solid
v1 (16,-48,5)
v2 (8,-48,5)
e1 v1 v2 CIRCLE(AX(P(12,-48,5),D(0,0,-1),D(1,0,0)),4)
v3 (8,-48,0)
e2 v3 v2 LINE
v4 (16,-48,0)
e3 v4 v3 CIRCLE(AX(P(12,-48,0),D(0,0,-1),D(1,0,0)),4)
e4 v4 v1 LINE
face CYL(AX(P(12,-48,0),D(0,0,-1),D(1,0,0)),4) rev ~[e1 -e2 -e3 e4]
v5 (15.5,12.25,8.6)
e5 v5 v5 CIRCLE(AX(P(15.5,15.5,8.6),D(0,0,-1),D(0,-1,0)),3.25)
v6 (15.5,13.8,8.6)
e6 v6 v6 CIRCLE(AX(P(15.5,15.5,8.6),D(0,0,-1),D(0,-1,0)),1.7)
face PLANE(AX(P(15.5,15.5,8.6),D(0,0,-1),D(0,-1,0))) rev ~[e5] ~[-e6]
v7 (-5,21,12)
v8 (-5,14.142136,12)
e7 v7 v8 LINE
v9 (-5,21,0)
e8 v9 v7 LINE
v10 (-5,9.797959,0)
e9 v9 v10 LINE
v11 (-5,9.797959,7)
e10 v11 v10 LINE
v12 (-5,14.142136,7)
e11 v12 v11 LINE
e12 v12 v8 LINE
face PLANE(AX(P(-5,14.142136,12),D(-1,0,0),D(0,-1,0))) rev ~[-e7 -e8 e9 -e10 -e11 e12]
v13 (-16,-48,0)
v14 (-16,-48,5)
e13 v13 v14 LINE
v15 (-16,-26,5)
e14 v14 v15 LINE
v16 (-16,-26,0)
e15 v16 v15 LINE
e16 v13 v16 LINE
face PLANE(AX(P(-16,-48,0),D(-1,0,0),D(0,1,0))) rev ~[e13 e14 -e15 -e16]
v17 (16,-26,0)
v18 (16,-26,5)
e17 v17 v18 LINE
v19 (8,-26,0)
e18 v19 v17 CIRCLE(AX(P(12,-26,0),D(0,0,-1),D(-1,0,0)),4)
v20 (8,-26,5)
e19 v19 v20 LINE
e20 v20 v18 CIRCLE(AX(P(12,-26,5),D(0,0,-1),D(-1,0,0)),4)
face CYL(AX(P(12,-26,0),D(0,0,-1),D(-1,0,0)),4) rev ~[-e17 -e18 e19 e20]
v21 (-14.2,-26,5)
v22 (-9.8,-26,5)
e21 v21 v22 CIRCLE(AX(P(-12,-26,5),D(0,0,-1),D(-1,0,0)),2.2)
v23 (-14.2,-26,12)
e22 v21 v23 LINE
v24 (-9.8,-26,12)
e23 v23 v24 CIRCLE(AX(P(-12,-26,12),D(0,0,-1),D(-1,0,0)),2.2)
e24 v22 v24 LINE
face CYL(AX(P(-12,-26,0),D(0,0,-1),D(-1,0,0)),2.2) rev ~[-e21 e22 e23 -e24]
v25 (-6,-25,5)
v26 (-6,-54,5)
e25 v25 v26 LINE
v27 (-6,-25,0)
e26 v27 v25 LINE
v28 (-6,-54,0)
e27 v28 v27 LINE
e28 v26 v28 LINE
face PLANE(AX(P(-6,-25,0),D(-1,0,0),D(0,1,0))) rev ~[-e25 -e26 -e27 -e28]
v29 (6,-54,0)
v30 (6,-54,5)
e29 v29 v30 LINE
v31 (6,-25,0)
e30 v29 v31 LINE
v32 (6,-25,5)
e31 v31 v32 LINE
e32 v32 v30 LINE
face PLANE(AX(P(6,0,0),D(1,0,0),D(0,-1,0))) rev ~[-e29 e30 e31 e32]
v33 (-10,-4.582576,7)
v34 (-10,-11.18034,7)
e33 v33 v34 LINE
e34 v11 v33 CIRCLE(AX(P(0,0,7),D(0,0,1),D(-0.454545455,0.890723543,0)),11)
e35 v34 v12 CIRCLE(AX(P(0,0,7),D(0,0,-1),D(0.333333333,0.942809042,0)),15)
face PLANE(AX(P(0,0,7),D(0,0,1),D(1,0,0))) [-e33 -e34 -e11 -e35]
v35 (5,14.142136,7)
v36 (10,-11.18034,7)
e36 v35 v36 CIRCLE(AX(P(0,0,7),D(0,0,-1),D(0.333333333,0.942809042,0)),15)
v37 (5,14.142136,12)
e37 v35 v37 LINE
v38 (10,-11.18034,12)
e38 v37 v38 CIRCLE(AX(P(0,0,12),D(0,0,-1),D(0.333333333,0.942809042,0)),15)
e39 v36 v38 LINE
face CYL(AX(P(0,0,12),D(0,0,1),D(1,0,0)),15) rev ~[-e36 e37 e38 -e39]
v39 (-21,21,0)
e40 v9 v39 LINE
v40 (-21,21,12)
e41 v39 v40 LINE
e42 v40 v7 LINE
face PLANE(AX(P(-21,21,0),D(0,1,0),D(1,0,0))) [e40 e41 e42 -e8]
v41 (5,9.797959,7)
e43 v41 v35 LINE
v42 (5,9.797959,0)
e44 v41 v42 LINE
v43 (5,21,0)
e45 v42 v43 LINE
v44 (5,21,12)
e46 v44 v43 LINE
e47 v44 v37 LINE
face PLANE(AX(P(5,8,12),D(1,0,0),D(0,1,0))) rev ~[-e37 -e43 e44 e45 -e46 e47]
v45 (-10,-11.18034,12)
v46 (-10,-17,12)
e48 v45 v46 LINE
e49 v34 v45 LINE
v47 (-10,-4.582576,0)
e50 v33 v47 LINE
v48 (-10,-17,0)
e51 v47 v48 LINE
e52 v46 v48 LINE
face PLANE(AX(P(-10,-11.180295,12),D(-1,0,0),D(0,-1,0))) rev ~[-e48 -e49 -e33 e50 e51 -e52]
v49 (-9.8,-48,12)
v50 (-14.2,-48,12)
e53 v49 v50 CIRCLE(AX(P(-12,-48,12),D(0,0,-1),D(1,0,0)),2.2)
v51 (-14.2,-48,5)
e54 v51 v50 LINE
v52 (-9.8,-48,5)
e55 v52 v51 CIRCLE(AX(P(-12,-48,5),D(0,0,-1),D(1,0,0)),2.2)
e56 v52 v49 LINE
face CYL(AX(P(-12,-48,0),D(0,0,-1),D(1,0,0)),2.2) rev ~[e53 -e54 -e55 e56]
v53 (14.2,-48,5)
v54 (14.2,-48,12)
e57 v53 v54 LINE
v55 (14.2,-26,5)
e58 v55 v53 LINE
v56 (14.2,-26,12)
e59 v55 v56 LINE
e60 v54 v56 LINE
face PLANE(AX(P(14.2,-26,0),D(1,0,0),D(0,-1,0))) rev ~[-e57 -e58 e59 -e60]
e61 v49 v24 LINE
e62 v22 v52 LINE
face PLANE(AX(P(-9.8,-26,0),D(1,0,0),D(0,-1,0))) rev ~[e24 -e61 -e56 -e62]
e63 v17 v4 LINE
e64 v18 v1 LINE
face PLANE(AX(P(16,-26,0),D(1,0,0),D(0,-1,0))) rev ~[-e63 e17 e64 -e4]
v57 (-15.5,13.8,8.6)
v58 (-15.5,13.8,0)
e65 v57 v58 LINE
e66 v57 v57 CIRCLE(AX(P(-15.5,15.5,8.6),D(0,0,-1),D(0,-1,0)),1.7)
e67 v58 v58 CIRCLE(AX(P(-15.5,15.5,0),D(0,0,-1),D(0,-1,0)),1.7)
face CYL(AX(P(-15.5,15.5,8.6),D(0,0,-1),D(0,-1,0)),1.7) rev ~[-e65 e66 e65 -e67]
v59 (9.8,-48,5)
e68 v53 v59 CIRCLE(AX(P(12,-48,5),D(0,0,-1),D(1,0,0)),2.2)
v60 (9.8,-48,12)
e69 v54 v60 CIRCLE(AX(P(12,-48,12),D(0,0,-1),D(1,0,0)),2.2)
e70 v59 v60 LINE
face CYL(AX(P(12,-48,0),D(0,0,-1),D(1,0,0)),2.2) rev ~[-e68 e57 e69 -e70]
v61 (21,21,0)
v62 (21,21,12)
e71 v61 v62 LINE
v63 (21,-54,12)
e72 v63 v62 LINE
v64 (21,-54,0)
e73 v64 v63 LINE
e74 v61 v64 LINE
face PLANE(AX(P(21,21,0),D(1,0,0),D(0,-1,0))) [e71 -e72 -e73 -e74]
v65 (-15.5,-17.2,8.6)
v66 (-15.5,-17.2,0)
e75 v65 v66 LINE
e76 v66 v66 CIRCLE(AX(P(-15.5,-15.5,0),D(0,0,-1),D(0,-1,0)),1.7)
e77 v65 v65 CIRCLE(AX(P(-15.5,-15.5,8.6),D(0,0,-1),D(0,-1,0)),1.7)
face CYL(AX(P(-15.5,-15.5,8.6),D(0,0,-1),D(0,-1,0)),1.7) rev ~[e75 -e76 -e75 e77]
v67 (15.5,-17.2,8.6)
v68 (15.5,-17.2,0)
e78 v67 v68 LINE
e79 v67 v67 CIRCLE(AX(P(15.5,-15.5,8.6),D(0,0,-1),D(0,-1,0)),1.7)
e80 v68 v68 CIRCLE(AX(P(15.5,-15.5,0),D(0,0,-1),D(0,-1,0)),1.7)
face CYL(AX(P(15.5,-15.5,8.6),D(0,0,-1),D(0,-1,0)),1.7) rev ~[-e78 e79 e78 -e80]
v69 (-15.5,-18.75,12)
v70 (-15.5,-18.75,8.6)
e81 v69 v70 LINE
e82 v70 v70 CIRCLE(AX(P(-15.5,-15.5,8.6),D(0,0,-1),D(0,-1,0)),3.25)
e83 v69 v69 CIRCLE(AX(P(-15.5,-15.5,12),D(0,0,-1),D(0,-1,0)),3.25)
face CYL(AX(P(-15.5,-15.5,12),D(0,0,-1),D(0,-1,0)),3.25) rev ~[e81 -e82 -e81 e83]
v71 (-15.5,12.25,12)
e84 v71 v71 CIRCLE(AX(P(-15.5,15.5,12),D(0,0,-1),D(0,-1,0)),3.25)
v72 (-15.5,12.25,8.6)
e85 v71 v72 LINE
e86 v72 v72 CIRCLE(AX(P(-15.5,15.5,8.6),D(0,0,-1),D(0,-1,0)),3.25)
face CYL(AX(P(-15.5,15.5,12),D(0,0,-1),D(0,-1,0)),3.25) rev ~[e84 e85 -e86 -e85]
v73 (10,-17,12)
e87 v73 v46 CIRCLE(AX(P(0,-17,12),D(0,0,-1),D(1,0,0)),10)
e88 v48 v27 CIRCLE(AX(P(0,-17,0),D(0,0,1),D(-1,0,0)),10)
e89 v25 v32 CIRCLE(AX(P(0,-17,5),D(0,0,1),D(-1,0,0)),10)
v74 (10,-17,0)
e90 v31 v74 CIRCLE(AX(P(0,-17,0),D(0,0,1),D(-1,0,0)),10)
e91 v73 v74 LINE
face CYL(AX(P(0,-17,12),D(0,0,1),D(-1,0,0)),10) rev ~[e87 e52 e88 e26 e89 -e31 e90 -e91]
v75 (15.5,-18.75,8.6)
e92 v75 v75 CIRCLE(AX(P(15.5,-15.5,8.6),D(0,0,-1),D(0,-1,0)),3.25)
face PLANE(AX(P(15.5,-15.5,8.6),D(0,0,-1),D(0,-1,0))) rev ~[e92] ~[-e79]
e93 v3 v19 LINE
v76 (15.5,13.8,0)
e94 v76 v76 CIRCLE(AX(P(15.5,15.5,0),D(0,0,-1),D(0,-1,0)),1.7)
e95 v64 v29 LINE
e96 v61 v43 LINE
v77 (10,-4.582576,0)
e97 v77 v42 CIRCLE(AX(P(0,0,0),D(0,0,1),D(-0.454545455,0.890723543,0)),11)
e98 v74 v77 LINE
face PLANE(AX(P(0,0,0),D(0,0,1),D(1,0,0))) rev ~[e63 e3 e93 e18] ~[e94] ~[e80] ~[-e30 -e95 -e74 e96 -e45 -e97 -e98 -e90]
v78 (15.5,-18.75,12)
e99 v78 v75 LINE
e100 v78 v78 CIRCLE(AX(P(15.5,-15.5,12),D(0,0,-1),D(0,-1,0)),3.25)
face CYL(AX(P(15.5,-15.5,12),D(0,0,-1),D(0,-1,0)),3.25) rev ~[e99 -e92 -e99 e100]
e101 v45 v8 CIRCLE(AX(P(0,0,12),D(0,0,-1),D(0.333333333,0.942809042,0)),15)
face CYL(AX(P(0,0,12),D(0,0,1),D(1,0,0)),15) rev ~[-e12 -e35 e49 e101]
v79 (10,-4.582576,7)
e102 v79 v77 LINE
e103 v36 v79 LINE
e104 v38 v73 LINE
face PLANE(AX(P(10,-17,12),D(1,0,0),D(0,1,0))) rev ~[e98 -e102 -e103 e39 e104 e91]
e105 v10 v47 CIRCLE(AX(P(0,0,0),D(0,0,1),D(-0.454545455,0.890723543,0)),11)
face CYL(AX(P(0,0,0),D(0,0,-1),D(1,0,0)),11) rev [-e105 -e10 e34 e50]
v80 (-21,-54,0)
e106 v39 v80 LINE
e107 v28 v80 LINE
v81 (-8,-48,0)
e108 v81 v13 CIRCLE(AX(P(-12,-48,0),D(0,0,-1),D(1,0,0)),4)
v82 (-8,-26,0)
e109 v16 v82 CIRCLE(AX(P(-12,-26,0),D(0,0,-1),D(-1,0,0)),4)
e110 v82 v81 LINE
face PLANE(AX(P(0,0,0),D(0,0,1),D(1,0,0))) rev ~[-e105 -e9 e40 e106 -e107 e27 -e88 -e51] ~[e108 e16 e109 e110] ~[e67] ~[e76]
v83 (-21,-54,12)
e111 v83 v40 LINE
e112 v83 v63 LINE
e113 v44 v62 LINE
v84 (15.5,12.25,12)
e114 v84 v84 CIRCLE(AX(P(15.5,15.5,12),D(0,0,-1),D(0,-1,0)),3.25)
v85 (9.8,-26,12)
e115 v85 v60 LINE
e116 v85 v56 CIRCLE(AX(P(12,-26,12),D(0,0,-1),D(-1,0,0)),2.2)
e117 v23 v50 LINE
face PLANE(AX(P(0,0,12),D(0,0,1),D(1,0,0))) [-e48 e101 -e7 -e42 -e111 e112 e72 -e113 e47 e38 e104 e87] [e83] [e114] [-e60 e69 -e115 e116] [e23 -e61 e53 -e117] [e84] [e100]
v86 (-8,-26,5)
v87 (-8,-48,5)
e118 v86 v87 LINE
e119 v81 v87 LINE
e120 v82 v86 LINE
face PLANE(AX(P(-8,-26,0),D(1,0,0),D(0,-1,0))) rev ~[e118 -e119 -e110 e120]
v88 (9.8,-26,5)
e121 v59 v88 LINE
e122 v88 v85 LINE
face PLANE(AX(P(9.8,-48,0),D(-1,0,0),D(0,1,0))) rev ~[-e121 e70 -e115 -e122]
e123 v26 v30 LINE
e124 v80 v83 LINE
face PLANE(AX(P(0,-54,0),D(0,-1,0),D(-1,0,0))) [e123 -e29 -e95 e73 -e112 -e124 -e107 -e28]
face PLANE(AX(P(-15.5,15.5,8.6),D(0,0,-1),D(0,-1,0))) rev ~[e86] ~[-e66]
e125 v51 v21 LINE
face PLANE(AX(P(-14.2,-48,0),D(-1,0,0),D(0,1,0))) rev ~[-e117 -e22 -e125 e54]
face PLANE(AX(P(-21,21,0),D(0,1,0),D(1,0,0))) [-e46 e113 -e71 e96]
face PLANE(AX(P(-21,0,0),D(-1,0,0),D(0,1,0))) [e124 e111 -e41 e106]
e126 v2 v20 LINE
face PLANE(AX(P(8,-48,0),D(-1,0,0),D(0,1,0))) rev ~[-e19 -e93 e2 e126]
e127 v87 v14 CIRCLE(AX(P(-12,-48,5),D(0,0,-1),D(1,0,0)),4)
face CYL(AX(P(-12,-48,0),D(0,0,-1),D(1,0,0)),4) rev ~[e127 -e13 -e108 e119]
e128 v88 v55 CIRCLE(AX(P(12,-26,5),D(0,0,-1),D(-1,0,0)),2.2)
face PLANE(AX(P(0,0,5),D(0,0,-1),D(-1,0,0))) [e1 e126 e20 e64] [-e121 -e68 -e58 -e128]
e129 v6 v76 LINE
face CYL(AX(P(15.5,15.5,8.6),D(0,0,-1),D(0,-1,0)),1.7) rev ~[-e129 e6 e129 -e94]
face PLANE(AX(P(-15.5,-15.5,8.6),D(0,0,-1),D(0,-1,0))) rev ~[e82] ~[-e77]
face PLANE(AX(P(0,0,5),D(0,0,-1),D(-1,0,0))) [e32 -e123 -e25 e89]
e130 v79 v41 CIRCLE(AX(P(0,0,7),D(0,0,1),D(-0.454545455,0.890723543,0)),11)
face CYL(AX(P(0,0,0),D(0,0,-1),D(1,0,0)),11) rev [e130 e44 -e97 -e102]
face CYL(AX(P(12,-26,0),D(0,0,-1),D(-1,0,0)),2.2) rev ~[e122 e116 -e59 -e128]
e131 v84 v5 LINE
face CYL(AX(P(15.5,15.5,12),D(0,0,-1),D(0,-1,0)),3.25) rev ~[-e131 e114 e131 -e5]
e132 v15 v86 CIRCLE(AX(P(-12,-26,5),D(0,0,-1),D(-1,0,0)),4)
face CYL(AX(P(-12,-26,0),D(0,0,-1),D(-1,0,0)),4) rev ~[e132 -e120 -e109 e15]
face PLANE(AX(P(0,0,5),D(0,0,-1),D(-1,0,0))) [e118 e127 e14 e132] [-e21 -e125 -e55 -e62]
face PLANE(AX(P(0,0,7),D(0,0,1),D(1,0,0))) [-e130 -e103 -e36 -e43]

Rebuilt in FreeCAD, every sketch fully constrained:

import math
import FreeCAD as App
import Part
import Sketcher

V = App.Vector
Q = App.Units.Quantity

doc = App.newDocument("Part")
body = doc.addObject("PartDesign::Body", "Body")

sketch1 = doc.addObject("Sketcher::SketchObject", "Sketch")
body.addObject(sketch1)
sketch1.AttachmentSupport = (doc.XY_Plane, [""])
sketch1.MapMode = "FlatFace"
sketch1.addGeometry([
    Part.LineSegment(V(-21, 21, 0), V(-21, -54, 0)),
    Part.LineSegment(V(-21, -54, 0), V(21, -54, 0)),
    Part.LineSegment(V(21, -54, 0), V(21, 21, 0)),
    Part.LineSegment(V(21, 21, 0), V(-21, 21, 0)),
    Part.Circle(V(0, 0, 0), V(0, 0, 1), 11),
], False)
sketch1.addConstraint([
    Sketcher.Constraint("Coincident", 0, 2, 1, 1),
    Sketcher.Constraint("Coincident", 1, 2, 2, 1),
    Sketcher.Constraint("Coincident", 2, 2, 3, 1),
    Sketcher.Constraint("Coincident", 3, 2, 0, 1),
    Sketcher.Constraint("Vertical", 0),
    Sketcher.Constraint("Horizontal", 1),
    Sketcher.Constraint("Vertical", 2),
    Sketcher.Constraint("Horizontal", 3),
    Sketcher.Constraint("Coincident", 4, 3, -1, 1),
    Sketcher.Constraint("Diameter", 4, Q("22 mm")),
    Sketcher.Constraint("DistanceX", 1, 1, 1, 2, Q("42 mm")),
    Sketcher.Constraint("DistanceY", 0, 2, 0, 1, Q("75 mm")),
    Sketcher.Constraint("DistanceX", 0, 2, -1, 1, Q("21 mm")),
    Sketcher.Constraint("DistanceY", -1, 1, 2, 2, Q("21 mm")),
])
pad1 = doc.addObject("PartDesign::Pad", "Pad")
body.addObject(pad1)
pad1.Profile = sketch1
pad1.Length = 12

sketch2 = doc.addObject("Sketcher::SketchObject", "Sketch001")
body.addObject(sketch2)
sketch2.AttachmentSupport = (doc.XY_Plane, [""])
sketch2.MapMode = "FlatFace"
sketch2.AttachmentOffset = App.Placement(V(0, 0, 12), App.Rotation())
sketch2.addGeometry([
    Part.Circle(V(-15.5, 15.5, 0), V(0, 0, 1), 1.7),
    Part.Circle(V(15.5, 15.5, 0), V(0, 0, 1), 1.7),
    Part.Circle(V(15.5, -15.5, 0), V(0, 0, 1), 1.7),
    Part.Circle(V(-15.5, -15.5, 0), V(0, 0, 1), 1.7),
], False)
sketch2.addConstraint([
    Sketcher.Constraint("Equal", 0, 1),
    Sketcher.Constraint("Equal", 1, 2),
    Sketcher.Constraint("Equal", 2, 3),
    Sketcher.Constraint("Symmetric", 0, 3, 2, 3, -1, 1),
    Sketcher.Constraint("Symmetric", 1, 3, 3, 3, -1, 1),
    Sketcher.Constraint("Symmetric", 0, 3, 1, 3, -2),
    Sketcher.Constraint("Diameter", 0, Q("3.4 mm")),
    Sketcher.Constraint("DistanceX", 0, 3, 1, 3, Q("31 mm")),
    Sketcher.Constraint("DistanceY", 2, 3, 1, 3, Q("31 mm")),
])
doc.recompute()
hole = doc.addObject("PartDesign::Hole", "Hole")
body.addObject(hole)
hole.Profile = sketch2
hole.ThreadType = "None"
hole.Diameter = 3.4
hole.DepthType = "ThroughAll"
hole.HoleCutType = "Counterbore"
hole.HoleCutDiameter = 6.5
hole.HoleCutDepth = 3.4

sketch3 = doc.addObject("Sketcher::SketchObject", "Sketch002")
body.addObject(sketch3)
sketch3.AttachmentSupport = (doc.XY_Plane, [""])
sketch3.MapMode = "FlatFace"
sketch3.addGeometry([
    Part.ArcOfCircle(Part.Circle(V(12, -48, 0), V(0, 0, 1), 4), math.radians(180), math.radians(360)),
    Part.LineSegment(V(8, -48, 0), V(8, -26, 0)),
    Part.ArcOfCircle(Part.Circle(V(12, -26, 0), V(0, 0, 1), 4), math.radians(0), math.radians(180)),
    Part.LineSegment(V(16, -26, 0), V(16, -48, 0)),
    Part.ArcOfCircle(Part.Circle(V(-12, -48, 0), V(0, 0, 1), 4), math.radians(180), math.radians(360)),
    Part.LineSegment(V(-16, -48, 0), V(-16, -26, 0)),
    Part.ArcOfCircle(Part.Circle(V(-12, -26, 0), V(0, 0, 1), 4), math.radians(0), math.radians(180)),
    Part.LineSegment(V(-8, -26, 0), V(-8, -48, 0)),
], False)
sketch3.addConstraint([
    Sketcher.Constraint("Tangent", 0, 1, 1, 1),
    Sketcher.Constraint("Tangent", 1, 2, 2, 2),
    Sketcher.Constraint("Tangent", 2, 1, 3, 1),
    Sketcher.Constraint("Tangent", 3, 2, 0, 2),
    Sketcher.Constraint("Tangent", 4, 1, 5, 1),
    Sketcher.Constraint("Tangent", 5, 2, 6, 2),
    Sketcher.Constraint("Tangent", 6, 1, 7, 1),
    Sketcher.Constraint("Tangent", 7, 2, 4, 2),
    Sketcher.Constraint("Vertical", 1),
    Sketcher.Constraint("Vertical", 3),
    Sketcher.Constraint("Vertical", 5),
    Sketcher.Constraint("Vertical", 7),
    Sketcher.Constraint("Equal", 2, 4),
    Sketcher.Constraint("Symmetric", 0, 3, 4, 3, -2),
    Sketcher.Constraint("Horizontal", 2, 3, 6, 3),
    Sketcher.Constraint("Radius", 0, Q("4 mm")),
    Sketcher.Constraint("DistanceY", 1, 1, 1, 2, Q("22 mm")),
    Sketcher.Constraint("DistanceX", -1, 1, 0, 1, Q("8 mm")),
    Sketcher.Constraint("DistanceY", 0, 3, -1, 1, Q("48 mm")),
])
pocket1 = doc.addObject("PartDesign::Pocket", "Pocket")
body.addObject(pocket1)
pocket1.Profile = sketch3
pocket1.Length = 5
pocket1.Reversed = True

sketch4 = doc.addObject("Sketcher::SketchObject", "Sketch003")
body.addObject(sketch4)
sketch4.AttachmentSupport = (doc.XY_Plane, [""])
sketch4.MapMode = "FlatFace"
sketch4.addGeometry([
    Part.ArcOfCircle(Part.Circle(V(-12, -48, 0), V(0, 0, 1), 2.2), math.radians(180), math.radians(360)),
    Part.LineSegment(V(-14.2, -48, 0), V(-14.2, -26, 0)),
    Part.ArcOfCircle(Part.Circle(V(-12, -26, 0), V(0, 0, 1), 2.2), math.radians(0), math.radians(180)),
    Part.LineSegment(V(-9.8, -26, 0), V(-9.8, -48, 0)),
    Part.ArcOfCircle(Part.Circle(V(12, -48, 0), V(0, 0, 1), 2.2), math.radians(180), math.radians(360)),
    Part.LineSegment(V(9.8, -48, 0), V(9.8, -26, 0)),
    Part.ArcOfCircle(Part.Circle(V(12, -26, 0), V(0, 0, 1), 2.2), math.radians(0), math.radians(180)),
    Part.LineSegment(V(14.2, -26, 0), V(14.2, -48, 0)),
], False)
sketch4.addConstraint([
    Sketcher.Constraint("Tangent", 0, 1, 1, 1),
    Sketcher.Constraint("Tangent", 1, 2, 2, 2),
    Sketcher.Constraint("Tangent", 2, 1, 3, 1),
    Sketcher.Constraint("Tangent", 3, 2, 0, 2),
    Sketcher.Constraint("Tangent", 4, 1, 5, 1),
    Sketcher.Constraint("Tangent", 5, 2, 6, 2),
    Sketcher.Constraint("Tangent", 6, 1, 7, 1),
    Sketcher.Constraint("Tangent", 7, 2, 4, 2),
    Sketcher.Constraint("Vertical", 1),
    Sketcher.Constraint("Vertical", 3),
    Sketcher.Constraint("Vertical", 5),
    Sketcher.Constraint("Vertical", 7),
    Sketcher.Constraint("Equal", 2, 4),
    Sketcher.Constraint("Symmetric", 0, 3, 4, 3, -2),
    Sketcher.Constraint("Horizontal", 2, 3, 6, 3),
    Sketcher.Constraint("Radius", 0, Q("2.2 mm")),
    Sketcher.Constraint("DistanceY", 1, 1, 1, 2, Q("22 mm")),
    Sketcher.Constraint("DistanceX", 0, 3, -1, 1, Q("12 mm")),
    Sketcher.Constraint("DistanceY", 0, 3, -1, 1, Q("48 mm")),
])
pocket2 = doc.addObject("PartDesign::Pocket", "Pocket001")
body.addObject(pocket2)
pocket2.Profile = sketch4
pocket2.Type = "ThroughAll"
pocket2.Reversed = True

sketch5 = doc.addObject("Sketcher::SketchObject", "Sketch004")
body.addObject(sketch5)
sketch5.AttachmentSupport = (doc.XY_Plane, [""])
sketch5.MapMode = "FlatFace"
sketch5.AttachmentOffset = App.Placement(V(0, 0, 12), App.Rotation())
sketch5.addGeometry([
    Part.Circle(V(0, 0, 0), V(0, 0, 1), 15),
    Part.Circle(V(0, 0, 0), V(0, 0, 1), 11),
], False)
sketch5.addConstraint([
    Sketcher.Constraint("Coincident", 0, 3, -1, 1),
    Sketcher.Constraint("Coincident", 1, 3, -1, 1),
    Sketcher.Constraint("Diameter", 0, Q("30 mm")),
    Sketcher.Constraint("Diameter", 1, Q("22 mm")),
])
pocket3 = doc.addObject("PartDesign::Pocket", "Pocket002")
body.addObject(pocket3)
pocket3.Profile = sketch5
pocket3.Length = 5

sketch6 = doc.addObject("Sketcher::SketchObject", "Sketch005")
body.addObject(sketch6)
sketch6.AttachmentSupport = (doc.XY_Plane, [""])
sketch6.MapMode = "FlatFace"
sketch6.AttachmentOffset = App.Placement(V(0, 0, 12), App.Rotation())
sketch6.addGeometry([
    Part.LineSegment(V(5, 8, 0), V(5, 26, 0)),
    Part.LineSegment(V(5, 26, 0), V(-5, 26, 0)),
    Part.LineSegment(V(-5, 26, 0), V(-5, 8, 0)),
    Part.LineSegment(V(-5, 8, 0), V(5, 8, 0)),
], False)
sketch6.addConstraint([
    Sketcher.Constraint("Coincident", 0, 2, 1, 1),
    Sketcher.Constraint("Coincident", 1, 2, 2, 1),
    Sketcher.Constraint("Coincident", 2, 2, 3, 1),
    Sketcher.Constraint("Coincident", 3, 2, 0, 1),
    Sketcher.Constraint("Vertical", 0),
    Sketcher.Constraint("Horizontal", 1),
    Sketcher.Constraint("Vertical", 2),
    Sketcher.Constraint("Horizontal", 3),
    Sketcher.Constraint("DistanceX", 1, 2, 1, 1, Q("10 mm")),
    Sketcher.Constraint("DistanceY", 0, 1, 0, 2, Q("18 mm")),
    Sketcher.Constraint("DistanceY", -1, 1, 2, 2, Q("8 mm")),
    Sketcher.Constraint("DistanceX", -1, 1, 0, 2, Q("5 mm")),
])
pocket4 = doc.addObject("PartDesign::Pocket", "Pocket003")
body.addObject(pocket4)
pocket4.Profile = sketch6
pocket4.Type = "ThroughAll"

sketch7 = doc.addObject("Sketcher::SketchObject", "Sketch006")
body.addObject(sketch7)
sketch7.AttachmentSupport = (doc.XY_Plane, [""])
sketch7.MapMode = "FlatFace"
sketch7.AttachmentOffset = App.Placement(V(0, 0, 12), App.Rotation())
sketch7.addGeometry([
    Part.LineSegment(V(10, -17, 0), V(10, 0, 0)),
    Part.ArcOfCircle(Part.Circle(V(0, 0, 0), V(0, 0, 1), 10), math.radians(0), math.radians(180)),
    Part.LineSegment(V(-10, 0, 0), V(-10, -17, 0)),
    Part.ArcOfCircle(Part.Circle(V(0, -17, 0), V(0, 0, 1), 10), math.radians(180), math.radians(360)),
], False)
sketch7.addConstraint([
    Sketcher.Constraint("Tangent", 0, 2, 1, 1),
    Sketcher.Constraint("Tangent", 1, 2, 2, 1),
    Sketcher.Constraint("Tangent", 2, 2, 3, 1),
    Sketcher.Constraint("Tangent", 3, 2, 0, 1),
    Sketcher.Constraint("Vertical", 0),
    Sketcher.Constraint("Vertical", 2),
    Sketcher.Constraint("Coincident", 1, 3, -1, 1),
    Sketcher.Constraint("Radius", 1, Q("10 mm")),
    Sketcher.Constraint("DistanceY", 0, 1, 0, 2, Q("17 mm")),
])
pocket5 = doc.addObject("PartDesign::Pocket", "Pocket004")
body.addObject(pocket5)
pocket5.Profile = sketch7
pocket5.Type = "ThroughAll"

sketch8 = doc.addObject("Sketcher::SketchObject", "Sketch007")
body.addObject(sketch8)
sketch8.AttachmentSupport = (doc.XY_Plane, [""])
sketch8.MapMode = "FlatFace"
sketch8.addGeometry([
    Part.LineSegment(V(6, 0, 0), V(6, -60, 0)),
    Part.ArcOfCircle(Part.Circle(V(0, -60, 0), V(0, 0, 1), 6), math.radians(180), math.radians(360)),
    Part.LineSegment(V(-6, -60, 0), V(-6, 0, 0)),
    Part.ArcOfCircle(Part.Circle(V(0, 0, 0), V(0, 0, 1), 6), math.radians(0), math.radians(180)),
], False)
sketch8.addConstraint([
    Sketcher.Constraint("Tangent", 0, 2, 1, 2),
    Sketcher.Constraint("Tangent", 1, 1, 2, 1),
    Sketcher.Constraint("Tangent", 2, 2, 3, 2),
    Sketcher.Constraint("Tangent", 3, 1, 0, 1),
    Sketcher.Constraint("Vertical", 0),
    Sketcher.Constraint("Vertical", 2),
    Sketcher.Constraint("Coincident", 3, 3, -1, 1),
    Sketcher.Constraint("Radius", 1, Q("6 mm")),
    Sketcher.Constraint("DistanceY", 0, 2, 0, 1, Q("60 mm")),
])
pocket6 = doc.addObject("PartDesign::Pocket", "Pocket005")
body.addObject(pocket6)
pocket6.Profile = sketch8
pocket6.Length = 5
pocket6.Reversed = True

doc.recompute()
